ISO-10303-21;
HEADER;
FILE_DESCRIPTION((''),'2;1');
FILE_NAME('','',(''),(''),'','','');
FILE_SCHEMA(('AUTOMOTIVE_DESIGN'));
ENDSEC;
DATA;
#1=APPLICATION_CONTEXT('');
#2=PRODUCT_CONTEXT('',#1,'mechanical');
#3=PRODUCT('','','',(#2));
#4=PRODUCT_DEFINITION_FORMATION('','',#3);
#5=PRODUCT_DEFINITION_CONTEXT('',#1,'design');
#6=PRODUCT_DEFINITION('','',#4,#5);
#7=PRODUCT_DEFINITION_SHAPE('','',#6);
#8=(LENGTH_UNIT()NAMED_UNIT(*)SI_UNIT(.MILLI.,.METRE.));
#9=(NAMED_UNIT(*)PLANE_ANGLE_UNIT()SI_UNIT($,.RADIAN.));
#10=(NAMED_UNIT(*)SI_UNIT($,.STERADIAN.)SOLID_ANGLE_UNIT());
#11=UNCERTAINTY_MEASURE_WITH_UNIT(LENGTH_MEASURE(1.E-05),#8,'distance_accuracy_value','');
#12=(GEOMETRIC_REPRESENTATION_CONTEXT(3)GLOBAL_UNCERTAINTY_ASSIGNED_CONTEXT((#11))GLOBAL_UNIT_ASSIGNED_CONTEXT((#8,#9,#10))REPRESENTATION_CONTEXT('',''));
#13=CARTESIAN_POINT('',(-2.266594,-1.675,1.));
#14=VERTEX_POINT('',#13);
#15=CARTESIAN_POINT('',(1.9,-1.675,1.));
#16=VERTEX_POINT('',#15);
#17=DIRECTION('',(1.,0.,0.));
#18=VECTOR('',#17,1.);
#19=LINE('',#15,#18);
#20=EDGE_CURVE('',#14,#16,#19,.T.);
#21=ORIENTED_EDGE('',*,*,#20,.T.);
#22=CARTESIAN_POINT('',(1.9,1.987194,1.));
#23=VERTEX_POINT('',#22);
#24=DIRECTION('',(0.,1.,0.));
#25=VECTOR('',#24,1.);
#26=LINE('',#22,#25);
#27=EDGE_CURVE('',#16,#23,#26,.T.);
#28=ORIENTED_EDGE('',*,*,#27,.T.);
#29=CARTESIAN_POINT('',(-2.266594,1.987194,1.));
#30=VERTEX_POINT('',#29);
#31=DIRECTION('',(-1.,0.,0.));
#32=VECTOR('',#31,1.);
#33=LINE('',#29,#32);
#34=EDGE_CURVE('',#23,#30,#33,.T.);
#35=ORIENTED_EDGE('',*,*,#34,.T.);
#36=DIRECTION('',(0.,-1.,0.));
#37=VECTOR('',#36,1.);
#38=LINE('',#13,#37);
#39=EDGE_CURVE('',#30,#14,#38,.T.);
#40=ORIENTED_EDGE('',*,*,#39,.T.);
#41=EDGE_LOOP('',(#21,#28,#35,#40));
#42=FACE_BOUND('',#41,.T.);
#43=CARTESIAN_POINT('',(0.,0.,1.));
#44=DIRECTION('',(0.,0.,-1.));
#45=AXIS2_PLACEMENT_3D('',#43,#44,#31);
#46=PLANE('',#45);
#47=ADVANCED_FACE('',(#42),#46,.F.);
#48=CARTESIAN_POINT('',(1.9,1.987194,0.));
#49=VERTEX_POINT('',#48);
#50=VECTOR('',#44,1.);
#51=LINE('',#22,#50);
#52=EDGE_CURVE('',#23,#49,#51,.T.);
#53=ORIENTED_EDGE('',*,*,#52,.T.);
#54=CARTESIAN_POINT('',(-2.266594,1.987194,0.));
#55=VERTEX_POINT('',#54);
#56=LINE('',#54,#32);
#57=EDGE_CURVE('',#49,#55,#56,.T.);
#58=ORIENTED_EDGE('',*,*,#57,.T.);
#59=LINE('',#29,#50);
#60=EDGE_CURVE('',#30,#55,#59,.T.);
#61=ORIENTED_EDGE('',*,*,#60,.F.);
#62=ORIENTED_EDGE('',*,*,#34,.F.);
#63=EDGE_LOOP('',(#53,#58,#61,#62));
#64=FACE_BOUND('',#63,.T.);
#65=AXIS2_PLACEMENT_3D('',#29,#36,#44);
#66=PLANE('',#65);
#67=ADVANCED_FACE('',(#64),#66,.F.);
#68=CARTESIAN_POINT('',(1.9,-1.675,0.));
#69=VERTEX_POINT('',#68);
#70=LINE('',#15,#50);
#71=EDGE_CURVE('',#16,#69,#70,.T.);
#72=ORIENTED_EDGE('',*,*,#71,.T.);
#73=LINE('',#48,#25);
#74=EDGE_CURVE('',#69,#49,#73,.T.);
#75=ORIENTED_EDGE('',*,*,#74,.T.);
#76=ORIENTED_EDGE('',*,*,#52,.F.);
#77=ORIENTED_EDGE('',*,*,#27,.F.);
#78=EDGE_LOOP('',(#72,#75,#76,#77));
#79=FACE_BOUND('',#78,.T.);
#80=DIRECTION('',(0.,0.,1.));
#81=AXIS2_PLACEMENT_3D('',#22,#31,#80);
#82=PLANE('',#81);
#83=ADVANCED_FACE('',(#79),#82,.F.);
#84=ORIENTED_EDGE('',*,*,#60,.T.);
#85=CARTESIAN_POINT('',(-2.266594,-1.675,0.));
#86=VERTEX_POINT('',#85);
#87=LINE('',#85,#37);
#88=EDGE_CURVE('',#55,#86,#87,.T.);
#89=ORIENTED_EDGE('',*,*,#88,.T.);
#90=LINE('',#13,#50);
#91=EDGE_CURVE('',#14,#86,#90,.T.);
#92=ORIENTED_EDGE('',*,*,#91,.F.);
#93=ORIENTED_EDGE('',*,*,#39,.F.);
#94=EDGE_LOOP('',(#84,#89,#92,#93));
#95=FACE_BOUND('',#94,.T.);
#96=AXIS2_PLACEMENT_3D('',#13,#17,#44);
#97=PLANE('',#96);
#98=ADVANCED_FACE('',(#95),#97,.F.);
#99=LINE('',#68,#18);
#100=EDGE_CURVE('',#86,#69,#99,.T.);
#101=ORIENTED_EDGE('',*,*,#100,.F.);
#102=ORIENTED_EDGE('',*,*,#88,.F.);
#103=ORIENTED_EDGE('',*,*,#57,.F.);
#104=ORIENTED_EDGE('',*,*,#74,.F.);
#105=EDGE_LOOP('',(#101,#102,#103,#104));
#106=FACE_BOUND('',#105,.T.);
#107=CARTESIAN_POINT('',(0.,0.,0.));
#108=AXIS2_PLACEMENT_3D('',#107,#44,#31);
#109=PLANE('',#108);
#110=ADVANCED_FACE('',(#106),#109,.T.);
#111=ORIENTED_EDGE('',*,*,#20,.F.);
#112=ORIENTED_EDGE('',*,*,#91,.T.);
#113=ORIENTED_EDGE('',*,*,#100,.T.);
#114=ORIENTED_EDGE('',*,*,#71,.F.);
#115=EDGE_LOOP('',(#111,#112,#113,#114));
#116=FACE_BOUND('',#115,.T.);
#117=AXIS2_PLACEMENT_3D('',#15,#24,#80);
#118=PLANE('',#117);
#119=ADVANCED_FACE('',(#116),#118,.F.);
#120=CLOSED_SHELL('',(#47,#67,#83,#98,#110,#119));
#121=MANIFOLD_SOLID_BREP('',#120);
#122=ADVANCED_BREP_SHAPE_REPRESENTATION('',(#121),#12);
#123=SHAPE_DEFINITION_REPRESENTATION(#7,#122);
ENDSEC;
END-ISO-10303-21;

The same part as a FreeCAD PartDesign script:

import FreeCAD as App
import Part
import Sketcher
Q = App.Units.Quantity

doc = App.newDocument("Part")
body = doc.addObject("PartDesign::Body", "Body")

# Sketch on XY plane
sketch1 = doc.addObject("Sketcher::SketchObject", "Sketch")
body.addObject(sketch1)
sketch1.AttachmentSupport = (doc.XY_Plane, [""])
sketch1.MapMode = "FlatFace"
sketch1.addGeometry(Part.LineSegment(App.Vector(-2.3, 2, 0), App.Vector(-2.3, -1.7, 0)), False)
sketch1.addGeometry(Part.LineSegment(App.Vector(-2.3, -1.7, 0), App.Vector(1.9, -1.7, 0)), False)
sketch1.addGeometry(Part.LineSegment(App.Vector(1.9, -1.7, 0), App.Vector(1.9, 2, 0)), False)
sketch1.addGeometry(Part.LineSegment(App.Vector(1.9, 2, 0), App.Vector(-2.3, 2, 0)), False)
sketch1.addConstraint(Sketcher.Constraint("Coincident", 0, 2, 1, 1))
sketch1.addConstraint(Sketcher.Constraint("Coincident", 1, 2, 2, 1))
sketch1.addConstraint(Sketcher.Constraint("Coincident", 2, 2, 3, 1))
sketch1.addConstraint(Sketcher.Constraint("Coincident", 3, 2, 0, 1))
sketch1.addConstraint(Sketcher.Constraint("Vertical", 0))
sketch1.addConstraint(Sketcher.Constraint("Horizontal", 1))
sketch1.addConstraint(Sketcher.Constraint("Vertical", 2))
sketch1.addConstraint(Sketcher.Constraint("Horizontal", 3))
sketch1.addConstraint(Sketcher.Constraint("DistanceX", -1, 1, 1, 2, Q("1.9 mm")))
sketch1.addConstraint(Sketcher.Constraint("DistanceY", 0, 2, -1, 1, Q("1.675 mm")))
sketch1.addConstraint(Sketcher.Constraint("DistanceX", 1, 1, 1, 2, Q("4.166594 mm")))
sketch1.addConstraint(Sketcher.Constraint("DistanceY", 0, 2, 0, 1, Q("3.662194 mm")))
pad1 = doc.addObject("PartDesign::Pad", "Pad")
body.addObject(pad1)
pad1.Profile = sketch1
pad1.Length = 1

doc.recompute()
